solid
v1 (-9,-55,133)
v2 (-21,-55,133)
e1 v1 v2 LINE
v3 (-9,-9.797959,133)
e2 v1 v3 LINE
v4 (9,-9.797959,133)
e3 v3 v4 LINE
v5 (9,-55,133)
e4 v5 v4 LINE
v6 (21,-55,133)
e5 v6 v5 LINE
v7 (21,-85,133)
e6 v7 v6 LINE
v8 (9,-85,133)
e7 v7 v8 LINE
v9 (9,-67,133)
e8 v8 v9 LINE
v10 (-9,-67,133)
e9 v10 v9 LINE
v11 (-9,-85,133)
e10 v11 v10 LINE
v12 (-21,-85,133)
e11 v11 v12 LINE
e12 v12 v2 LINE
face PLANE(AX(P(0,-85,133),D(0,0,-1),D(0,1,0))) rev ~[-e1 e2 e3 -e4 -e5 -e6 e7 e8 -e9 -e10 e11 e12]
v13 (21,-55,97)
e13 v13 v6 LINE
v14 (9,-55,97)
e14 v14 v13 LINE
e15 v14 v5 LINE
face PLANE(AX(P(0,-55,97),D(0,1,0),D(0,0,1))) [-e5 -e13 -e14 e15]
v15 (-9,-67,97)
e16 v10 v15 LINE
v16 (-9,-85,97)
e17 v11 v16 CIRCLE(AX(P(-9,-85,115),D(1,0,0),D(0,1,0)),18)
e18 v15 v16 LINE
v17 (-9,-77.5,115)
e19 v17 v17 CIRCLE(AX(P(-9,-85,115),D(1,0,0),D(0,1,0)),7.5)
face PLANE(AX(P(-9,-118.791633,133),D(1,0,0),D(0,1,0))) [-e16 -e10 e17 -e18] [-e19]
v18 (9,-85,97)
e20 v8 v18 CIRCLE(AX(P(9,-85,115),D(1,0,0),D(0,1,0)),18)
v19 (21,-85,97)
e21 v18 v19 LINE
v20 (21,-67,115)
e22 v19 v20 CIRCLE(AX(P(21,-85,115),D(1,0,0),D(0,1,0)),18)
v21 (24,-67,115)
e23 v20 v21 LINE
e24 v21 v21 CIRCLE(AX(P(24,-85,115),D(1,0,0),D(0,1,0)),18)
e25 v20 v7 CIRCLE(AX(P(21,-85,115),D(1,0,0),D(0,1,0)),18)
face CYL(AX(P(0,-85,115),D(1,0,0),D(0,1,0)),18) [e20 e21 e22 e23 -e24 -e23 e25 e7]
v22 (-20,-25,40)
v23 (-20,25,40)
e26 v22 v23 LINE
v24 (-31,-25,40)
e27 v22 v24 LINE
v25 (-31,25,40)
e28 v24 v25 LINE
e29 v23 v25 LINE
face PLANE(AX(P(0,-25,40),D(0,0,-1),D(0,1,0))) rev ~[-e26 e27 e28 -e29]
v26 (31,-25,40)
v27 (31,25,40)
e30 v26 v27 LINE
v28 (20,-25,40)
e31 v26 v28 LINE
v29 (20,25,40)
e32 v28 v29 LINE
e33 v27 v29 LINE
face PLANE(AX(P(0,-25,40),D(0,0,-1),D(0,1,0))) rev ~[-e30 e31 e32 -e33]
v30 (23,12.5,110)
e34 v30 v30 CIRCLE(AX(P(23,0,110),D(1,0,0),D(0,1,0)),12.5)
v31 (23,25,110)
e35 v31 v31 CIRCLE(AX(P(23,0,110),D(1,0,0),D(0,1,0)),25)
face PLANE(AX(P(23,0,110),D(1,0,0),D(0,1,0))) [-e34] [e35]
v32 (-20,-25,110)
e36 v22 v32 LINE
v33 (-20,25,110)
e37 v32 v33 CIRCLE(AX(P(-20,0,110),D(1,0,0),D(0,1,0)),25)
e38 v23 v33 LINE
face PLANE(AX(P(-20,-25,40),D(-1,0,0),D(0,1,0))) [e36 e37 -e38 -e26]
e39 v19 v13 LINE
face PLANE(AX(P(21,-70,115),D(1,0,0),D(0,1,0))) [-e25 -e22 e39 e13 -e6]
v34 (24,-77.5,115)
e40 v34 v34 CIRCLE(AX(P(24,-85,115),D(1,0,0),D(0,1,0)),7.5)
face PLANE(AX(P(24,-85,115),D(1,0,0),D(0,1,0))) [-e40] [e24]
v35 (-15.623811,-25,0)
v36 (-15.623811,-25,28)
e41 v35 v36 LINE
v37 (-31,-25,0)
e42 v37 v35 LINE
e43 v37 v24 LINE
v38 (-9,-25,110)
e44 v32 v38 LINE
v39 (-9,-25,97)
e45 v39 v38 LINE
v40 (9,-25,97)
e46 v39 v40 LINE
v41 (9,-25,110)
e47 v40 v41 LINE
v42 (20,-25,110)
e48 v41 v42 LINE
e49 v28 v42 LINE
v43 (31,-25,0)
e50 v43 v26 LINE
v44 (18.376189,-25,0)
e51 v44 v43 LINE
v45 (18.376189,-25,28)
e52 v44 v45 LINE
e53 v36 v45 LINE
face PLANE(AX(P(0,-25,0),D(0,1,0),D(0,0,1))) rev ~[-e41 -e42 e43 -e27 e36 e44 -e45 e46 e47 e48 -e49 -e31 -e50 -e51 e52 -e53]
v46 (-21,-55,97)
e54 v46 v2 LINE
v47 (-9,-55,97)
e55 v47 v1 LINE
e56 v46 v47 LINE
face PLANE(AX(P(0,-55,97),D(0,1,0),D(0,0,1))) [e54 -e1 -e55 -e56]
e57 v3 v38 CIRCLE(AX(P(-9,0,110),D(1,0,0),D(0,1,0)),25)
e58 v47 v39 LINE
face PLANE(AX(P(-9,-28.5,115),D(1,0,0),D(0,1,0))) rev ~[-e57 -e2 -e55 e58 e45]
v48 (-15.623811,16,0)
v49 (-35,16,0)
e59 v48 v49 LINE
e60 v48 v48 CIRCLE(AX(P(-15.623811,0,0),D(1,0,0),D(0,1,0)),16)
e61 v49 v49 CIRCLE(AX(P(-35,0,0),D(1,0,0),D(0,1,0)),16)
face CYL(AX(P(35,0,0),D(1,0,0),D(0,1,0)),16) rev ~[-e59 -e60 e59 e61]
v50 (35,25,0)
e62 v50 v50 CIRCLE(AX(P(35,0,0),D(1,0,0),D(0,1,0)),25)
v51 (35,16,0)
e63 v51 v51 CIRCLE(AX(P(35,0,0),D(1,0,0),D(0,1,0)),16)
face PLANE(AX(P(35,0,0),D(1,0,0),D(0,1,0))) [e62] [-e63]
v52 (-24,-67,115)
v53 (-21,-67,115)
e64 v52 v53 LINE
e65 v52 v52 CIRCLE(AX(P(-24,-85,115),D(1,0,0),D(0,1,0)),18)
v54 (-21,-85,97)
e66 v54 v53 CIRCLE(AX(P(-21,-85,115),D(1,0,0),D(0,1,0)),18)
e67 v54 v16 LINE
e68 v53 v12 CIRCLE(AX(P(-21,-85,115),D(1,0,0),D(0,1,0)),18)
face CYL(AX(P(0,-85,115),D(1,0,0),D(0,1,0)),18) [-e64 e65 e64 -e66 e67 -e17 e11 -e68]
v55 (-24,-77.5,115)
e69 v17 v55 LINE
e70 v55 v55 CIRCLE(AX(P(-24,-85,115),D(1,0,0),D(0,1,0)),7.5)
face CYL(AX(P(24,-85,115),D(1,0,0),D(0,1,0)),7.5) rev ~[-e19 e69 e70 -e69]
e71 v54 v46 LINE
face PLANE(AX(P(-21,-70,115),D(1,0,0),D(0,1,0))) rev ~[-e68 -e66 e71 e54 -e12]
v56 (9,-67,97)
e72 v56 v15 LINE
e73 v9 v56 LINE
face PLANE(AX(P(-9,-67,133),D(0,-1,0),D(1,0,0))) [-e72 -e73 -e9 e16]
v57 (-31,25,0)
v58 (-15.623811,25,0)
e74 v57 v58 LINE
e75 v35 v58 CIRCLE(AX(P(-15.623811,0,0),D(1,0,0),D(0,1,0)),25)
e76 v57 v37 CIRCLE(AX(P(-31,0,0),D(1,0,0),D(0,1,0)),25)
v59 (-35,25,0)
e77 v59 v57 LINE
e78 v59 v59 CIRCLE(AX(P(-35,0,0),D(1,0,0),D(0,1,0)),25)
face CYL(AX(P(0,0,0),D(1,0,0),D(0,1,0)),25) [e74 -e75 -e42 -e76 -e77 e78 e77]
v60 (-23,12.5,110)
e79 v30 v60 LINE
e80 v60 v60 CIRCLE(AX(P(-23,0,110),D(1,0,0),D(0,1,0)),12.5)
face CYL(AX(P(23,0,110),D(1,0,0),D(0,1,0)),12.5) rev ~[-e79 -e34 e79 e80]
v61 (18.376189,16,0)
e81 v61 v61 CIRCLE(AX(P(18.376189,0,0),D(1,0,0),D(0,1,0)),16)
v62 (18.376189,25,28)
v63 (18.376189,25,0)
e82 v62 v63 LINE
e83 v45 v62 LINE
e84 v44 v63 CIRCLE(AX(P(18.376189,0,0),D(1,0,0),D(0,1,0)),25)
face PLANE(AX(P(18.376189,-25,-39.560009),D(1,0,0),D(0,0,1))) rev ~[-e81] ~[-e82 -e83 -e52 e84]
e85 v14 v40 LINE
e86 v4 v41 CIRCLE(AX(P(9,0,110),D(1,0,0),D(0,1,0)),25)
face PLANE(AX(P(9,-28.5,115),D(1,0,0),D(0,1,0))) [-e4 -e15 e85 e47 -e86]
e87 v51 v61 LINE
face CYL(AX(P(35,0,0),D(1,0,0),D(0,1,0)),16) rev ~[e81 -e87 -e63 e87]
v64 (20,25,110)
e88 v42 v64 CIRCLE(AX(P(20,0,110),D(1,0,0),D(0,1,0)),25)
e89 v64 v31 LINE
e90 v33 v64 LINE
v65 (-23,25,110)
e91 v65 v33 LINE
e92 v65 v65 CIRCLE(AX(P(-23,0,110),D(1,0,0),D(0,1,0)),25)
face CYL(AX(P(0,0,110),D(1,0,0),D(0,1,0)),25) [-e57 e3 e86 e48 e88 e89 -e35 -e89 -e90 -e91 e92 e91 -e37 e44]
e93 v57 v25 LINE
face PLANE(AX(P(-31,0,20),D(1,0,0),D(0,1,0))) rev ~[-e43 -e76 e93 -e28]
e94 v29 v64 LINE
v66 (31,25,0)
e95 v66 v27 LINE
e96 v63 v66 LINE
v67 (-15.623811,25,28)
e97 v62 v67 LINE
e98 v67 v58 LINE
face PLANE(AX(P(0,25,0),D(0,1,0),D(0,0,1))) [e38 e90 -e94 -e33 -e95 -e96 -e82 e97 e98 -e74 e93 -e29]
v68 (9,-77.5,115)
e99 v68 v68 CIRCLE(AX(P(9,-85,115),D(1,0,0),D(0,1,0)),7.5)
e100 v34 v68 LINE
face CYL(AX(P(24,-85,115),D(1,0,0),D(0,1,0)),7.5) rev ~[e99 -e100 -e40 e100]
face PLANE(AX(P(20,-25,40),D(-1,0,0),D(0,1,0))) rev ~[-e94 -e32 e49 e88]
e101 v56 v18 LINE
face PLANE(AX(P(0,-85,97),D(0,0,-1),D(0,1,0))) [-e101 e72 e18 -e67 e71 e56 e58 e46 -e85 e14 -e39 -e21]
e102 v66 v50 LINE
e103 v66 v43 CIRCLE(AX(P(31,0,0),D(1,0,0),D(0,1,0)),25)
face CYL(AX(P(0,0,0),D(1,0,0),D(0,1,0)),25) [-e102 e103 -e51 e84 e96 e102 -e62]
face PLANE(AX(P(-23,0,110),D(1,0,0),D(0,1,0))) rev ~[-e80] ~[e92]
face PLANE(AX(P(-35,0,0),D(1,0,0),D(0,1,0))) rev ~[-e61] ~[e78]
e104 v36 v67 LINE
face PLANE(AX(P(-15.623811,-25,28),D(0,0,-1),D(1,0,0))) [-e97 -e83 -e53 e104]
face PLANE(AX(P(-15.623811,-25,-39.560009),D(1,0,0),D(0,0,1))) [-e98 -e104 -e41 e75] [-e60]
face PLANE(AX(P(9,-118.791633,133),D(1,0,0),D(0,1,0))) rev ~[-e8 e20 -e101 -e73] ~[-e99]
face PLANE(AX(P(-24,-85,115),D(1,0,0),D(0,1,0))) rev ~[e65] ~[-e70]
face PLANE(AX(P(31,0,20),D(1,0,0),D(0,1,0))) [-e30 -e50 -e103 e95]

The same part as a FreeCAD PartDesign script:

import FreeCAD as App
import Part
import Sketcher
Q = App.Units.Quantity

doc = App.newDocument("Part")
body = doc.addObject("PartDesign::Body", "Body")

# Sketch on YZ plane
sketch1 = body.newObject("Sketcher::SketchObject", "Sketch")
sketch1.AttachmentSupport = (doc.getObject("YZ_Plane"), [""])
sketch1.MapMode = "FlatFace"
sketch1.addGeometry(Part.Circle(App.Vector(0, 0, 0), App.Vector(0, 0, 1), 25), False)
sketch1.addConstraint([
    Sketcher.Constraint("Coincident", 0, 3, -1, 1),
    Sketcher.Constraint("Diameter", 0, Q("50 mm")),
])
pad1 = body.newObject("PartDesign::Pad", "Pad")
pad1.Profile = sketch1
pad1.Length = 70
pad1.Midplane = True
body2 = doc.addObject("PartDesign::Body", "Body001")

# Sketch on YZ plane
sketch2 = body2.newObject("Sketcher::SketchObject", "Sketch001")
sketch2.AttachmentSupport = (doc.getObject("YZ_Plane001"), [""])
sketch2.MapMode = "FlatFace"
sketch2.addGeometry([
    Part.LineSegment(App.Vector(-25, 40, 0), App.Vector(-25, 0, 0)),
    Part.LineSegment(App.Vector(-25, 0, 0), App.Vector(25, 0, 0)),
    Part.LineSegment(App.Vector(25, 0, 0), App.Vector(25, 40, 0)),
    Part.LineSegment(App.Vector(25, 40, 0), App.Vector(-25, 40, 0)),
], False)
sketch2.addConstraint([
    Sketcher.Constraint("Coincident", 0, 2, 1, 1),
    Sketcher.Constraint("Coincident", 1, 2, 2, 1),
    Sketcher.Constraint("Coincident", 2, 2, 3, 1),
    Sketcher.Constraint("Coincident", 3, 2, 0, 1),
    Sketcher.Constraint("Vertical", 0),
    Sketcher.Constraint("Horizontal", 1),
    Sketcher.Constraint("Vertical", 2),
    Sketcher.Constraint("Horizontal", 3),
    Sketcher.Constraint("Symmetric", 0, 2, 1, 2, -1, 1),
    Sketcher.Constraint("DistanceX", 1, 1, 1, 2, Q("50 mm")),
    Sketcher.Constraint("DistanceY", 0, 2, 0, 1, Q("40 mm")),
])
pad2 = body2.newObject("PartDesign::Pad", "Pad001")
pad2.Profile = sketch2
pad2.Length = 62
pad2.Midplane = True
doc.recompute()

boolean = body2.newObject("PartDesign::Boolean", "Boolean")
boolean.Type = "Fuse"
boolean.addObjects([body])

# Sketch on XZ plane
sketch3 = body2.newObject("Sketcher::SketchObject", "Sketch002")
sketch3.AttachmentSupport = (doc.getObject("XZ_Plane001"), [""])
sketch3.MapMode = "FlatFace"
sketch3.AttachmentOffset = App.Placement(App.Vector(0, 0, 25), App.Rotation())
sketch3.addGeometry([
    Part.LineSegment(App.Vector(-15.623811, 28, 0), App.Vector(-15.623811, -39.560009, 0)),
    Part.LineSegment(App.Vector(-15.623811, -39.560009, 0), App.Vector(18.376189, -39.560009, 0)),
    Part.LineSegment(App.Vector(18.376189, -39.560009, 0), App.Vector(18.376189, 28, 0)),
    Part.LineSegment(App.Vector(18.376189, 28, 0), App.Vector(-15.623811, 28, 0)),
], False)
sketch3.addConstraint([
    Sketcher.Constraint("Coincident", 0, 2, 1, 1),
    Sketcher.Constraint("Coincident", 1, 2, 2, 1),
    Sketcher.Constraint("Coincident", 2, 2, 3, 1),
    Sketcher.Constraint("Coincident", 3, 2, 0, 1),
    Sketcher.Constraint("Vertical", 0),
    Sketcher.Constraint("Horizontal", 1),
    Sketcher.Constraint("Vertical", 2),
    Sketcher.Constraint("Horizontal", 3),
    Sketcher.Constraint("DistanceX", 1, 1, 1, 2, Q("34 mm")),
    Sketcher.Constraint("DistanceY", -1, 1, 2, 2, Q("28 mm")),
    Sketcher.Constraint("DistanceY", 0, 2, 0, 1, Q("67.560009 mm")),
    Sketcher.Constraint("DistanceX", 0, 2, -1, 1, Q("15.623811 mm")),
])
pocket1 = body2.newObject("PartDesign::Pocket", "Pocket")
pocket1.Profile = sketch3
pocket1.Type = "ThroughAll"

# Sketch on YZ plane
sketch4 = body2.newObject("Sketcher::SketchObject", "Sketch003")
sketch4.AttachmentSupport = (doc.getObject("YZ_Plane001"), [""])
sketch4.MapMode = "FlatFace"
sketch4.AttachmentOffset = App.Placement(App.Vector(0, 0, 35), App.Rotation())
sketch4.addGeometry(Part.Circle(App.Vector(0, 0, 0), App.Vector(0, 0, 1), 16), False)
sketch4.addConstraint([
    Sketcher.Constraint("Coincident", 0, 3, -1, 1),
    Sketcher.Constraint("Diameter", 0, Q("32 mm")),
])
pocket2 = body2.newObject("PartDesign::Pocket", "Pocket001")
pocket2.Profile = sketch4
pocket2.Type = "ThroughAll"

# Sketch on XY plane
sketch5 = body2.newObject("Sketcher::SketchObject", "Sketch004")
sketch5.AttachmentSupport = (doc.getObject("XY_Plane001"), [""])
sketch5.MapMode = "FlatFace"
sketch5.AttachmentOffset = App.Placement(App.Vector(0, 0, 40), App.Rotation())
sketch5.addGeometry([
    Part.LineSegment(App.Vector(-20, 25, 0), App.Vector(-20, -25, 0)),
    Part.LineSegment(App.Vector(-20, -25, 0), App.Vector(20, -25, 0)),
    Part.LineSegment(App.Vector(20, -25, 0), App.Vector(20, 25, 0)),
    Part.LineSegment(App.Vector(20, 25, 0), App.Vector(-20, 25, 0)),
], False)
sketch5.addConstraint([
    Sketcher.Constraint("Coincident", 0, 2, 1, 1),
    Sketcher.Constraint("Coincident", 1, 2, 2, 1),
    Sketcher.Constraint("Coincident", 2, 2, 3, 1),
    Sketcher.Constraint("Coincident", 3, 2, 0, 1),
    Sketcher.Constraint("Vertical", 0),
    Sketcher.Constraint("Horizontal", 1),
    Sketcher.Constraint("Vertical", 2),
    Sketcher.Constraint("Horizontal", 3),
    Sketcher.Constraint("Symmetric", 0, 2, 2, 2, -1, 1),
    Sketcher.Constraint("DistanceX", 1, 1, 1, 2, Q("40 mm")),
    Sketcher.Constraint("DistanceY", 0, 2, 0, 1, Q("50 mm")),
])
pad3 = body2.newObject("PartDesign::Pad", "Pad002")
pad3.Profile = sketch5
pad3.Length = 70
body3 = doc.addObject("PartDesign::Body", "Body002")

# Sketch on YZ plane
sketch6 = body3.newObject("Sketcher::SketchObject", "Sketch005")
sketch6.AttachmentSupport = (doc.getObject("YZ_Plane002"), [""])
sketch6.MapMode = "FlatFace"
sketch6.addGeometry(Part.Circle(App.Vector(0, 110, 0), App.Vector(0, 0, 1), 25), False)
sketch6.addConstraint([
    Sketcher.Constraint("PointOnObject", 0, 3, -2),
    Sketcher.Constraint("Diameter", 0, Q("50 mm")),
    Sketcher.Constraint("DistanceY", -1, 1, 0, 3, Q("110 mm")),
])
pad4 = body3.newObject("PartDesign::Pad", "Pad003")
pad4.Profile = sketch6
pad4.Length = 46
pad4.Midplane = True
doc.recompute()

boolean2 = body3.newObject("PartDesign::Boolean", "Boolean001")
boolean2.Type = "Fuse"
boolean2.addObjects([body2])
body4 = doc.addObject("PartDesign::Body", "Body003")

# Sketch on YZ plane
sketch7 = body4.newObject("Sketcher::SketchObject", "Sketch006")
sketch7.AttachmentSupport = (doc.getObject("YZ_Plane003"), [""])
sketch7.MapMode = "FlatFace"
sketch7.addGeometry([
    Part.LineSegment(App.Vector(-85, 133, 0), App.Vector(-85, 97, 0)),
    Part.LineSegment(App.Vector(-85, 97, 0), App.Vector(-55, 97, 0)),
    Part.LineSegment(App.Vector(-55, 97, 0), App.Vector(-55, 133, 0)),
    Part.LineSegment(App.Vector(-55, 133, 0), App.Vector(-85, 133, 0)),
], False)
sketch7.addConstraint([
    Sketcher.Constraint("Coincident", 0, 2, 1, 1),
    Sketcher.Constraint("Coincident", 1, 2, 2, 1),
    Sketcher.Constraint("Coincident", 2, 2, 3, 1),
    Sketcher.Constraint("Coincident", 3, 2, 0, 1),
    Sketcher.Constraint("Vertical", 0),
    Sketcher.Constraint("Horizontal", 1),
    Sketcher.Constraint("Vertical", 2),
    Sketcher.Constraint("Horizontal", 3),
    Sketcher.Constraint("DistanceX", 1, 1, 1, 2, Q("30 mm")),
    Sketcher.Constraint("DistanceY", 0, 2, 0, 1, Q("36 mm")),
    Sketcher.Constraint("DistanceX", 0, 2, -1, 1, Q("85 mm")),
    Sketcher.Constraint("DistanceY", -1, 1, 0, 2, Q("97 mm")),
])
pad5 = body4.newObject("PartDesign::Pad", "Pad004")
pad5.Profile = sketch7
pad5.Length = 42
pad5.Midplane = True
body5 = doc.addObject("PartDesign::Body", "Body004")

# Sketch on YZ plane
sketch8 = body5.newObject("Sketcher::SketchObject", "Sketch007")
sketch8.AttachmentSupport = (doc.getObject("YZ_Plane004"), [""])
sketch8.MapMode = "FlatFace"
sketch8.addGeometry(Part.Circle(App.Vector(-85, 115, 0), App.Vector(0, 0, 1), 18), False)
sketch8.addConstraint([
    Sketcher.Constraint("Diameter", 0, Q("36 mm")),
    Sketcher.Constraint("DistanceX", 0, 3, -1, 1, Q("85 mm")),
    Sketcher.Constraint("DistanceY", -1, 1, 0, 3, Q("115 mm")),
])
pad6 = body5.newObject("PartDesign::Pad", "Pad005")
pad6.Profile = sketch8
pad6.Length = 48
pad6.Midplane = True
doc.recompute()

boolean3 = body5.newObject("PartDesign::Boolean", "Boolean002")
boolean3.Type = "Fuse"
boolean3.addObjects([body4])

# Sketch on XY plane
sketch9 = body5.newObject("Sketcher::SketchObject", "Sketch008")
sketch9.AttachmentSupport = (doc.getObject("XY_Plane004"), [""])
sketch9.MapMode = "FlatFace"
sketch9.AttachmentOffset = App.Placement(App.Vector(0, 0, 133), App.Rotation())
sketch9.addGeometry([
    Part.LineSegment(App.Vector(-9, -67, 0), App.Vector(-9, -118.791633, 0)),
    Part.LineSegment(App.Vector(-9, -118.791633, 0), App.Vector(9, -118.791633, 0)),
    Part.LineSegment(App.Vector(9, -118.791633, 0), App.Vector(9, -67, 0)),
    Part.LineSegment(App.Vector(9, -67, 0), App.Vector(-9, -67, 0)),
], False)
sketch9.addConstraint([
    Sketcher.Constraint("Coincident", 0, 2, 1, 1),
    Sketcher.Constraint("Coincident", 1, 2, 2, 1),
    Sketcher.Constraint("Coincident", 2, 2, 3, 1),
    Sketcher.Constraint("Coincident", 3, 2, 0, 1),
    Sketcher.Constraint("Vertical", 0),
    Sketcher.Constraint("Horizontal", 1),
    Sketcher.Constraint("Vertical", 2),
    Sketcher.Constraint("Horizontal", 3),
    Sketcher.Constraint("DistanceX", 1, 1, 1, 2, Q("18 mm")),
    Sketcher.Constraint("DistanceX", 0, 2, -1, 1, Q("9 mm")),
    Sketcher.Constraint("DistanceY", 2, 2, -1, 1, Q("67 mm")),
    Sketcher.Constraint("DistanceY", 0, 2, 0, 1, Q("51.791633 mm")),
])
pocket3 = body5.newObject("PartDesign::Pocket", "Pocket002")
pocket3.Profile = sketch9
pocket3.Type = "ThroughAll"

# Sketch on XY plane
sketch10 = body5.newObject("Sketcher::SketchObject", "Sketch009")
sketch10.AttachmentSupport = (doc.getObject("XY_Plane004"), [""])
sketch10.MapMode = "FlatFace"
sketch10.AttachmentOffset = App.Placement(App.Vector(0, 0, 133), App.Rotation())
sketch10.addGeometry(Part.Circle(App.Vector(-85, 110, 0), App.Vector(0, 0, 1), 7.5), False)
sketch10.addConstraint([
    Sketcher.Constraint("Diameter", 0, Q("15 mm")),
    Sketcher.Constraint("DistanceX", 0, 3, -1, 1, Q("85 mm")),
    Sketcher.Constraint("DistanceY", -1, 1, 0, 3, Q("110 mm")),
])
pocket4 = body5.newObject("PartDesign::Pocket", "Pocket003")
pocket4.Profile = sketch10
pocket4.Type = "ThroughAll"
body6 = doc.addObject("PartDesign::Body", "Body005")

# Sketch on YZ plane
sketch11 = body6.newObject("Sketcher::SketchObject", "Sketch010")
sketch11.AttachmentSupport = (doc.getObject("YZ_Plane005"), [""])
sketch11.MapMode = "FlatFace"
sketch11.addGeometry([
    Part.LineSegment(App.Vector(-57, 133, 0), App.Vector(-57, 97, 0)),
    Part.LineSegment(App.Vector(-57, 97, 0), App.Vector(0, 97, 0)),
    Part.LineSegment(App.Vector(0, 97, 0), App.Vector(0, 133, 0)),
    Part.LineSegment(App.Vector(0, 133, 0), App.Vector(-57, 133, 0)),
], False)
sketch11.addConstraint([
    Sketcher.Constraint("Coincident", 0, 2, 1, 1),
    Sketcher.Constraint("Coincident", 1, 2, 2, 1),
    Sketcher.Constraint("Coincident", 2, 2, 3, 1),
    Sketcher.Constraint("Coincident", 3, 2, 0, 1),
    Sketcher.Constraint("Vertical", 0),
    Sketcher.Constraint("Horizontal", 1),
    Sketcher.Constraint("Vertical", 2),
    Sketcher.Constraint("Horizontal", 3),
    Sketcher.Constraint("PointOnObject", 1, 2, -2),
    Sketcher.Constraint("DistanceX", 1, 1, 1, 2, Q("57 mm")),
    Sketcher.Constraint("DistanceY", 0, 2, 0, 1, Q("36 mm")),
    Sketcher.Constraint("DistanceY", -1, 1, 0, 2, Q("97 mm")),
])
pad7 = body6.newObject("PartDesign::Pad", "Pad006")
pad7.Profile = sketch11
pad7.Length = 18
pad7.Midplane = True
doc.recompute()

boolean4 = body6.newObject("PartDesign::Boolean", "Boolean003")
boolean4.Type = "Fuse"
boolean4.addObjects([body5])
doc.recompute()

boolean5 = body6.newObject("PartDesign::Boolean", "Boolean004")
boolean5.Type = "Fuse"
boolean5.addObjects([body3])

# Sketch on YZ plane
sketch12 = body6.newObject("Sketcher::SketchObject", "Sketch011")
sketch12.AttachmentSupport = (doc.getObject("YZ_Plane005"), [""])
sketch12.MapMode = "FlatFace"
sketch12.AttachmentOffset = App.Placement(App.Vector(0, 0, 23), App.Rotation())
sketch12.addGeometry(Part.Circle(App.Vector(0, 110, 0), App.Vector(0, 0, 1), 12.5), False)
sketch12.addConstraint([
    Sketcher.Constraint("PointOnObject", 0, 3, -2),
    Sketcher.Constraint("Diameter", 0, Q("25 mm")),
    Sketcher.Constraint("DistanceY", -1, 1, 0, 3, Q("110 mm")),
])
pocket5 = body6.newObject("PartDesign::Pocket", "Pocket004")
pocket5.Profile = sketch12
pocket5.Type = "ThroughAll"

# Sketch on YZ plane
sketch13 = body6.newObject("Sketcher::SketchObject", "Sketch012")
sketch13.AttachmentSupport = (doc.getObject("YZ_Plane005"), [""])
sketch13.MapMode = "FlatFace"
sketch13.AttachmentOffset = App.Placement(App.Vector(0, 0, 24), App.Rotation())
sketch13.addGeometry(Part.Circle(App.Vector(-85, 115, 0), App.Vector(0, 0, 1), 7.5), False)
sketch13.addConstraint([
    Sketcher.Constraint("Diameter", 0, Q("15 mm")),
    Sketcher.Constraint("DistanceX", 0, 3, -1, 1, Q("85 mm")),
    Sketcher.Constraint("DistanceY", -1, 1, 0, 3, Q("115 mm")),
])
pocket6 = body6.newObject("PartDesign::Pocket", "Pocket005")
pocket6.Profile = sketch13
pocket6.Type = "ThroughAll"

doc.recompute()
